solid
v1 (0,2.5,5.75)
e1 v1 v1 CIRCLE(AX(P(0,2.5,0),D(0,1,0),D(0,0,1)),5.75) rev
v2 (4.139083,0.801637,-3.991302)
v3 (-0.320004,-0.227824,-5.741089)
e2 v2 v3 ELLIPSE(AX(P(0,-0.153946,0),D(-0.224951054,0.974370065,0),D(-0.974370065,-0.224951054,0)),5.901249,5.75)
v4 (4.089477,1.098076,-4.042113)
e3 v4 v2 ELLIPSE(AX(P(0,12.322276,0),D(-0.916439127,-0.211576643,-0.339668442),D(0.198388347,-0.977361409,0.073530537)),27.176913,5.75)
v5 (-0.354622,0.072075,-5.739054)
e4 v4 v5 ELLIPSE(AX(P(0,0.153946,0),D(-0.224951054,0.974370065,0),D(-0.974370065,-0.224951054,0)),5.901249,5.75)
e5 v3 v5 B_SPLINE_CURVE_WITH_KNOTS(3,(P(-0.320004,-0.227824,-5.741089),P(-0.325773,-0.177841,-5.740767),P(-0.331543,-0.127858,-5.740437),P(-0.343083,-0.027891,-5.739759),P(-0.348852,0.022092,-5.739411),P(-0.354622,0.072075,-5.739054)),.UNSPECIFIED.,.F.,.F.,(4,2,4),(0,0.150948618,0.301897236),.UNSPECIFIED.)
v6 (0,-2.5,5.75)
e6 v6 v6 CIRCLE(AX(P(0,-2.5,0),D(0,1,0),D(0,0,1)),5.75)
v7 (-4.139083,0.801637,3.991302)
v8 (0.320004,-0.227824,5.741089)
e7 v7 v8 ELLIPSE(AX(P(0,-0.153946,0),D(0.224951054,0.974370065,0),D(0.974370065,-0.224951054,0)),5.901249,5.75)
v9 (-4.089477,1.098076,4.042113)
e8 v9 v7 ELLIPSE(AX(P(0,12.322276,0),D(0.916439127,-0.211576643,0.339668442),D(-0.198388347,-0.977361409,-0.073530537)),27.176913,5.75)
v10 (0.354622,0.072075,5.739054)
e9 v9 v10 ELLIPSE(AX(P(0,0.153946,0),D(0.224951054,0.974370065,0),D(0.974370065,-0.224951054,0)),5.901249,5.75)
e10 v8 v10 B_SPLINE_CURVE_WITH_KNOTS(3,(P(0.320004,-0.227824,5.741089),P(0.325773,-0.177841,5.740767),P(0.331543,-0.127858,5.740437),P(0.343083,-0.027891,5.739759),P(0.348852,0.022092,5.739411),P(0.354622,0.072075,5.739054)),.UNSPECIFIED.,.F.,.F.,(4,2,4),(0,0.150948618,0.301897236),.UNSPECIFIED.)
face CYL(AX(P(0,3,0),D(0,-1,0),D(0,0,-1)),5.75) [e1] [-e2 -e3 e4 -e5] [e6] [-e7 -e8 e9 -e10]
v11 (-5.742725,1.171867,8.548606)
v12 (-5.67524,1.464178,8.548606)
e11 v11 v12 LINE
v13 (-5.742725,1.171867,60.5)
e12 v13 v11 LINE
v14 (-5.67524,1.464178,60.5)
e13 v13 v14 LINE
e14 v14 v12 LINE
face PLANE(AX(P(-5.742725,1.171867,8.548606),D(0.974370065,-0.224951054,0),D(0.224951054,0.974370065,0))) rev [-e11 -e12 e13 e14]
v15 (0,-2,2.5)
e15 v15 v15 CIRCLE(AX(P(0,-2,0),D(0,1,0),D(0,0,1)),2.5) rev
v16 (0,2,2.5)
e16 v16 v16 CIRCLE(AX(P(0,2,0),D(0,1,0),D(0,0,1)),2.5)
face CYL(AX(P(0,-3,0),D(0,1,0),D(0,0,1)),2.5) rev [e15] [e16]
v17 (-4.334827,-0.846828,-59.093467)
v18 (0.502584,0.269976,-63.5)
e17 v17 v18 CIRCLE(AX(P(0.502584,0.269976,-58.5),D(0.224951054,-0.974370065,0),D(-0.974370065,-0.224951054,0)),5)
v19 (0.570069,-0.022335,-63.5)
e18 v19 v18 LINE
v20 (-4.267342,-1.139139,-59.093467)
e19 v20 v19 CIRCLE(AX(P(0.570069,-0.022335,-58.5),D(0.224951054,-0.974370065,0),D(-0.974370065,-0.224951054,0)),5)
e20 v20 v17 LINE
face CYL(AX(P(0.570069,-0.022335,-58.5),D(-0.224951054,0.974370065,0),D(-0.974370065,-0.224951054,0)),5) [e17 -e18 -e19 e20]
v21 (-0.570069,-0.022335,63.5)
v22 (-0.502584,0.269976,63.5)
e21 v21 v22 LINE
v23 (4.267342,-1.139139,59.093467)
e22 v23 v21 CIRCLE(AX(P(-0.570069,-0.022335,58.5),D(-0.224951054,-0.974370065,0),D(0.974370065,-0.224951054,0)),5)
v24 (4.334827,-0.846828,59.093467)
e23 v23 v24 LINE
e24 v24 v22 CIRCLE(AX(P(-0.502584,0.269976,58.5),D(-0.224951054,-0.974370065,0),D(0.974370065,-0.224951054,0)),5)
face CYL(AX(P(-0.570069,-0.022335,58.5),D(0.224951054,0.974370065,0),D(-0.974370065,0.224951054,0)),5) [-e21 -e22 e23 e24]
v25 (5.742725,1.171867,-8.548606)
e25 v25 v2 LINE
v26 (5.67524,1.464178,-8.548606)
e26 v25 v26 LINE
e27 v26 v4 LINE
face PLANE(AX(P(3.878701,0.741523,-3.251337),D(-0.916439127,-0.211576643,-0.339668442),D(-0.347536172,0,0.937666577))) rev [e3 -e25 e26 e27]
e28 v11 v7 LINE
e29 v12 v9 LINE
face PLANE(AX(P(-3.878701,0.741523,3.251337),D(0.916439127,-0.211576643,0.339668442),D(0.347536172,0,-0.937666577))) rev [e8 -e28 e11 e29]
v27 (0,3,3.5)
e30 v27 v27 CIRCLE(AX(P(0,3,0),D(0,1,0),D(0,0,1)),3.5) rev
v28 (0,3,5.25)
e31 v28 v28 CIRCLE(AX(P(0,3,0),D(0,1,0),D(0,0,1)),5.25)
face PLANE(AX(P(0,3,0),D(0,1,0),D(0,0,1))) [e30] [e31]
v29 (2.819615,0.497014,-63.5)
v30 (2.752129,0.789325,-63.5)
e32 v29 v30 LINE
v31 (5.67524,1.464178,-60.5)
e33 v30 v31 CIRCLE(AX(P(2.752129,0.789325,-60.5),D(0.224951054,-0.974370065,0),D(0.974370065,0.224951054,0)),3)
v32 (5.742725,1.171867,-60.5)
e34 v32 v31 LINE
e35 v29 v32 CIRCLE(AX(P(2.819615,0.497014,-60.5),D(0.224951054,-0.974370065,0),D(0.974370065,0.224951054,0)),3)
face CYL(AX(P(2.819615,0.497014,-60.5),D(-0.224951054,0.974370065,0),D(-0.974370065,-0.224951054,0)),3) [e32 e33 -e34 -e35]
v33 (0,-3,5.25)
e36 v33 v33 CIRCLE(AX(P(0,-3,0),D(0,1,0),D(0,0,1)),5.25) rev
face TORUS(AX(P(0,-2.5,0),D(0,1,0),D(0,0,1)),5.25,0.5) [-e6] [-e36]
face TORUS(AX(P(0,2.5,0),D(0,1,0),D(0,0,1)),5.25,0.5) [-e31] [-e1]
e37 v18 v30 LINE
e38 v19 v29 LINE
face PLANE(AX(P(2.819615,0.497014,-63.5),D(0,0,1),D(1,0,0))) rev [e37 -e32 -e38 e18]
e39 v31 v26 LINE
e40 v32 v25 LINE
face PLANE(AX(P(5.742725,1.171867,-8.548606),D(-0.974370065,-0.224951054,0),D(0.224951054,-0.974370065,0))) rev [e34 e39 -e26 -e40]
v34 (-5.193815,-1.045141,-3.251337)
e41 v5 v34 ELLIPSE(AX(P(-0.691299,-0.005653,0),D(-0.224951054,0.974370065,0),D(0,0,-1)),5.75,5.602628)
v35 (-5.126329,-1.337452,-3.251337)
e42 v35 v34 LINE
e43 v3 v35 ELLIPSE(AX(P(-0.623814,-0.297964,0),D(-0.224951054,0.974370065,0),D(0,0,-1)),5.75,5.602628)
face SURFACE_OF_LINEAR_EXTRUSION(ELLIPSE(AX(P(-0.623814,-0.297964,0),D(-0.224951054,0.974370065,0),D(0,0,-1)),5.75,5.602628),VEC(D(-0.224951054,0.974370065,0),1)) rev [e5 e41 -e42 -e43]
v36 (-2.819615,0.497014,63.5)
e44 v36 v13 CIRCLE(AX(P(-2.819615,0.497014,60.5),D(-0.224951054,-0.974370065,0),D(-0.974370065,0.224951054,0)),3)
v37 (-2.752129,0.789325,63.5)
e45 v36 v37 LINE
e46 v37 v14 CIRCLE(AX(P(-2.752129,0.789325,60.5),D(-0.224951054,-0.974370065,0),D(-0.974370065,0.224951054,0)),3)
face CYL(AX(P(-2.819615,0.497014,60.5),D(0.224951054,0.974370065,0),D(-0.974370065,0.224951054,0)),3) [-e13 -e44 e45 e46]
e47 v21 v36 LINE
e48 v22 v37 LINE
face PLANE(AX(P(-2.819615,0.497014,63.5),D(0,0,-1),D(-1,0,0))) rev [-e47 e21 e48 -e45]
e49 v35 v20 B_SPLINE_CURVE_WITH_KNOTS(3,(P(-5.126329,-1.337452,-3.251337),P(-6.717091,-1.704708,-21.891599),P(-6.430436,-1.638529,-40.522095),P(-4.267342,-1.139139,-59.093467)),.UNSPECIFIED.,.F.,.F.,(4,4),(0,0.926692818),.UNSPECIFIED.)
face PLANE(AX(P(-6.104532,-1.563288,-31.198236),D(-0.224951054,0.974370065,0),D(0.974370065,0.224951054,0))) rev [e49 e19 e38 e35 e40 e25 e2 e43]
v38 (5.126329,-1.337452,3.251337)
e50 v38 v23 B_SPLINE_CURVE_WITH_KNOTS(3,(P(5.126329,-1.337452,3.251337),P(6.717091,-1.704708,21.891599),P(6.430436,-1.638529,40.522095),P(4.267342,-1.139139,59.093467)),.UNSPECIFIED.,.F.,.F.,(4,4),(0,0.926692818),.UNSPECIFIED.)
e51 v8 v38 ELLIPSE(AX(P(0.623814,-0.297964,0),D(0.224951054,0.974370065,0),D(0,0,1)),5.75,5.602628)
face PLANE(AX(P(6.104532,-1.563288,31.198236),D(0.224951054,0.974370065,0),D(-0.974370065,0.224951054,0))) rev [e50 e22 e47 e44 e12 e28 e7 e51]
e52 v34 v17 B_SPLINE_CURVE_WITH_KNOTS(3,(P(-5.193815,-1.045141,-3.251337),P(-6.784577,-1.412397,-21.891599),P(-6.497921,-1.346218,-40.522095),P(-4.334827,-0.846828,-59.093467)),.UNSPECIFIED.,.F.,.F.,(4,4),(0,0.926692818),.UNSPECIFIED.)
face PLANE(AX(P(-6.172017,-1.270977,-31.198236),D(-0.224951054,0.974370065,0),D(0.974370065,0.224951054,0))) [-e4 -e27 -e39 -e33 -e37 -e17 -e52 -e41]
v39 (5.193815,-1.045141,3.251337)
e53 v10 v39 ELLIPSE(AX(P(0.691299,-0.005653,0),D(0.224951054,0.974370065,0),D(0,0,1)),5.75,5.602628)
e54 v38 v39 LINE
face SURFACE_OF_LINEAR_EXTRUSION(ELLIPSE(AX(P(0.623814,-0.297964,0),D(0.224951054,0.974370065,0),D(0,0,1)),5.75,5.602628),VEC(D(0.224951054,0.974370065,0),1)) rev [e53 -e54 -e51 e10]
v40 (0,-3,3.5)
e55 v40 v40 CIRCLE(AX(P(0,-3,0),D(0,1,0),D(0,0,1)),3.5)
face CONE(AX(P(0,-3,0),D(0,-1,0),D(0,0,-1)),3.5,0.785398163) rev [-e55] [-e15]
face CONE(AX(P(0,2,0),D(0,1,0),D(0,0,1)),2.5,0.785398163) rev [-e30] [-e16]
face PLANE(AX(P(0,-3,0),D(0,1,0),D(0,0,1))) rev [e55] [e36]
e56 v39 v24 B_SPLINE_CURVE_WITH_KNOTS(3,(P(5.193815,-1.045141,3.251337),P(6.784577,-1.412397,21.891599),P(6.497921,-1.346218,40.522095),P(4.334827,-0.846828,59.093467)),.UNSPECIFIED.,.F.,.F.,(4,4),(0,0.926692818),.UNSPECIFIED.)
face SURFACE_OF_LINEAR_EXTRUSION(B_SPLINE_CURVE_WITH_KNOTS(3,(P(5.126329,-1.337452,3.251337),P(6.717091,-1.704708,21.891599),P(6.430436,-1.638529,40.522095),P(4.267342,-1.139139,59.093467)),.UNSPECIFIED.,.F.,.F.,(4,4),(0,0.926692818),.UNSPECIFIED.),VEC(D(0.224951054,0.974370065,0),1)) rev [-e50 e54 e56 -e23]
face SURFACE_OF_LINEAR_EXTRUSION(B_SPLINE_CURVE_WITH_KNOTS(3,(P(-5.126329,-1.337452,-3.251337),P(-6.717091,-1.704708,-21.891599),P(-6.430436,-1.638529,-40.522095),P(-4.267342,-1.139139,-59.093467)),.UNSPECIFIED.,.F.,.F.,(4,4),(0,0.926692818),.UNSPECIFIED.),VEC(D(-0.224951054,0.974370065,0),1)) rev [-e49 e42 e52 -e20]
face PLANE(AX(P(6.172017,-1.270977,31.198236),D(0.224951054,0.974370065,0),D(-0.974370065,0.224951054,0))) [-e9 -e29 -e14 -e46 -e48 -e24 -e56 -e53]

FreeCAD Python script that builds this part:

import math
import FreeCAD as App
import Part
import Sketcher

V = App.Vector
Q = App.Units.Quantity


def edges_at(feature, points):
    """Names of the edges that pass closest to the given points."""
    edges = feature.Shape.Edges
    near = lambda p: min(range(len(edges)), key=lambda i: edges[i].distToShape(Part.Vertex(*p))[0])
    return sorted({f"Edge{near(p) + 1}" for p in points})

doc = App.newDocument("Part")
body = doc.addObject("PartDesign::Body", "Body")

sketch1 = body.newObject("Sketcher::SketchObject", "Sketch")
sketch1.AttachmentSupport = (doc.getObject("XZ_Plane"), [""])
sketch1.MapMode = "FlatFace"
sketch1.addGeometry(Part.Circle(V(0, 0, 0), V(0, 0, 1), 6), False)
sketch1.addConstraint(Sketcher.Constraint("Coincident", 0, 3, -1, 1))
sketch1.addConstraint(Sketcher.Constraint("Diameter", 0, Q("11.5 mm")))
pad1 = body.newObject("PartDesign::Pad", "Pad")
pad1.Profile = sketch1
pad1.Length = 6
pad1.Midplane = True

sketch2 = body.newObject("Sketcher::SketchObject", "Sketch001")
sketch2.Placement = App.Placement(V(0, 0, 0), App.Rotation(V(0.974370065, -0.224951054, 0), V(0, 0, 1), V(-0.224951054, -0.974370065, 0), "ZXY"))
sketch2.addGeometry(Part.LineSegment(V(-5.859152, 8.548606, 0), V(-3.946097, 3.251337, 0)), False)
sketch2.addGeometry(Part.BSplineCurve([V(5.295803, 3.251337, 0), V(0.674853, 10.168893, 0), V(-3.946097, 3.251337, 0)], [3, 3], [5.313367698, 7.253002917], False, 2, [1, 0.565449973, 1], False), False)
sketch2.addGeometry(Part.BSplineCurve([V(5.295803, 3.251337, 0), V(6.928409, 21.891599, 0), V(6.634213, 40.522095, 0), V(4.41422, 59.093467, 0)], [4, 4], [0, 0.926692818], False, 3, [1, 1, 1, 1], False), False)
sketch2.addGeometry(Part.ArcOfCircle(Part.Circle(V(-0.550434, 58.5, 0), V(0, 0, 1), 5), math.radians(6.816701), math.radians(90)), False)
sketch2.addGeometry(Part.LineSegment(V(-0.550434, 63.5, 0), V(-2.859152, 63.5, 0)), False)
sketch2.addGeometry(Part.ArcOfCircle(Part.Circle(V(-2.859152, 60.5, 0), V(0, 0, 1), 3), math.radians(90), math.radians(180)), False)
sketch2.addGeometry(Part.LineSegment(V(-5.859152, 60.5, 0), V(-5.859152, 8.548606, 0)), False)
sketch2.addConstraint(Sketcher.Constraint("Block", 1))
sketch2.addConstraint(Sketcher.Constraint("Block", 2))
sketch2.addConstraint(Sketcher.Constraint("Coincident", 0, 2, 1, 2))
sketch2.addConstraint(Sketcher.Constraint("Coincident", 2, 2, 3, 1))
sketch2.addConstraint(Sketcher.Constraint("Tangent", 3, 2, 4, 1))
sketch2.addConstraint(Sketcher.Constraint("Tangent", 4, 2, 5, 1))
sketch2.addConstraint(Sketcher.Constraint("Tangent", 5, 2, 6, 1))
sketch2.addConstraint(Sketcher.Constraint("Coincident", 6, 2, 0, 1))
sketch2.addConstraint(Sketcher.Constraint("Horizontal", 4))
sketch2.addConstraint(Sketcher.Constraint("Vertical", 6))
sketch2.addConstraint(Sketcher.Constraint("Radius", 3, Q("5 mm")))
sketch2.addConstraint(Sketcher.Constraint("Radius", 5, Q("3 mm")))
sketch2.addConstraint(Sketcher.Constraint("DistanceY", -1, 1, 3, 3, Q("58.5 mm")))
sketch2.addConstraint(Sketcher.Constraint("DistanceX", 4, 2, 4, 1, Q("2.308717 mm")))
sketch2.addConstraint(Sketcher.Constraint("DistanceY", 6, 2, 6, 1, Q("51.951395 mm")))
pad2 = body.newObject("PartDesign::Pad", "Pad001")
pad2.Profile = sketch2
pad2.Length = 0.3
pad2.Midplane = True
doc.recompute()

polarpattern = body.newObject("PartDesign::PolarPattern", "PolarPattern")
polarpattern.Originals = [pad2]
polarpattern.Axis = (doc.getObject("Y_Axis"), [""])
polarpattern.Angle = 360
polarpattern.Occurrences = 2
body.Tip = polarpattern

sketch3 = body.newObject("Sketcher::SketchObject", "Sketch002")
sketch3.AttachmentSupport = (doc.getObject("XZ_Plane"), [""])
sketch3.MapMode = "FlatFace"
sketch3.AttachmentOffset = App.Placement(V(0, 0, -3), App.Rotation())
sketch3.addGeometry(Part.Circle(V(0, 0, 0), V(0, 0, 1), 2.5), False)
sketch3.addConstraint(Sketcher.Constraint("Coincident", 0, 3, -1, 1))
sketch3.addConstraint(Sketcher.Constraint("Diameter", 0, Q("5 mm")))
pocket1 = body.newObject("PartDesign::Pocket", "Pocket")
pocket1.Profile = sketch3
pocket1.Type = "ThroughAll"
pocket1.Reversed = True
doc.recompute()

fillet = body.newObject("PartDesign::Fillet", "Fillet")
fillet.Base = (pocket1, edges_at(pocket1, [(0, -3, -5.75), (0, 3, -5.75)]))
fillet.Radius = 0.5
doc.recompute()

chamfer = body.newObject("PartDesign::Chamfer", "Chamfer")
chamfer.Base = (fillet, edges_at(fillet, [(0, -3, -2.5), (0, 3, -2.5)]))
chamfer.Size = 1

doc.recompute()
